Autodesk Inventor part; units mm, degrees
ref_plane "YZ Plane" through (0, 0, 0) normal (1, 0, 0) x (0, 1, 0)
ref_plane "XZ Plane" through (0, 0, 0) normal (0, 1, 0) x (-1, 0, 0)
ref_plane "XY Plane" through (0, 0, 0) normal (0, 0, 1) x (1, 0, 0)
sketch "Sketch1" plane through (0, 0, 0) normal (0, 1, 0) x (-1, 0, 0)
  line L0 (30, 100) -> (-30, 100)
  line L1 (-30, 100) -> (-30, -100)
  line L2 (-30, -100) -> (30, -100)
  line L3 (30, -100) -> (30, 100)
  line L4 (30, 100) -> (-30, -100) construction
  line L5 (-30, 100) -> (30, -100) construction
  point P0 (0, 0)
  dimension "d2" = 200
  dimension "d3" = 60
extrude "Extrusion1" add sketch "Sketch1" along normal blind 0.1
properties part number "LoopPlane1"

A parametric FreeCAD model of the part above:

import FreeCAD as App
import Part
import Sketcher
from FreeCAD import Vector

doc = App.newDocument("Part")
params = doc.addObject("Spreadsheet::Sheet", "Params")
for row, (alias, value) in enumerate([
    ("sketch1_width", "60 mm"),
    ("sketch1_height", "200 mm"),
    ("pad1_length", "0.1 mm"),
], start=1):
    params.set(f"A{row}", alias)
    params.set(f"B{row}", "=" + value)
    params.setAlias(f"B{row}", alias)

body = doc.addObject("PartDesign::Body", "Body")

# Sketch on XZ plane
sketch1 = body.newObject("Sketcher::SketchObject", "Sketch")
sketch1.AttachmentSupport = (doc.getObject("XZ_Plane"), [""])
sketch1.MapMode = "FlatFace"
sketch1.addGeometry([
    Part.LineSegment(Vector(-30, -100, 0), Vector(-30, 100, 0)),
    Part.LineSegment(Vector(-30, 100, 0), Vector(30, 100, 0)),
    Part.LineSegment(Vector(30, 100, 0), Vector(30, -100, 0)),
    Part.LineSegment(Vector(30, -100, 0), Vector(-30, -100, 0)),
], False)
sketch1.addConstraint([
    Sketcher.Constraint("Coincident", 0, 2, 1, 1),
    Sketcher.Constraint("Coincident", 1, 2, 2, 1),
    Sketcher.Constraint("Coincident", 2, 2, 3, 1),
    Sketcher.Constraint("Coincident", 3, 2, 0, 1),
    Sketcher.Constraint("Vertical", 0),
    Sketcher.Constraint("Horizontal", 1),
    Sketcher.Constraint("Vertical", 2),
    Sketcher.Constraint("Horizontal", 3),
    Sketcher.Constraint("Symmetric", 0, 2, 2, 2, -1, 1),
    Sketcher.Constraint("DistanceX", 1, 1, 1, 2, 60.0),
    Sketcher.Constraint("DistanceY", 0, 1, 0, 2, 200.0),
])
sketch1.setExpression("Constraints[9]", "Params.sketch1_width")
sketch1.setExpression("Constraints[10]", "Params.sketch1_height")
pad1 = body.newObject("PartDesign::Pad", "Pad")
pad1.Profile = sketch1
pad1.setExpression("Length", "Params.pad1_length")
pad1.Reversed = True

doc.recompute()
